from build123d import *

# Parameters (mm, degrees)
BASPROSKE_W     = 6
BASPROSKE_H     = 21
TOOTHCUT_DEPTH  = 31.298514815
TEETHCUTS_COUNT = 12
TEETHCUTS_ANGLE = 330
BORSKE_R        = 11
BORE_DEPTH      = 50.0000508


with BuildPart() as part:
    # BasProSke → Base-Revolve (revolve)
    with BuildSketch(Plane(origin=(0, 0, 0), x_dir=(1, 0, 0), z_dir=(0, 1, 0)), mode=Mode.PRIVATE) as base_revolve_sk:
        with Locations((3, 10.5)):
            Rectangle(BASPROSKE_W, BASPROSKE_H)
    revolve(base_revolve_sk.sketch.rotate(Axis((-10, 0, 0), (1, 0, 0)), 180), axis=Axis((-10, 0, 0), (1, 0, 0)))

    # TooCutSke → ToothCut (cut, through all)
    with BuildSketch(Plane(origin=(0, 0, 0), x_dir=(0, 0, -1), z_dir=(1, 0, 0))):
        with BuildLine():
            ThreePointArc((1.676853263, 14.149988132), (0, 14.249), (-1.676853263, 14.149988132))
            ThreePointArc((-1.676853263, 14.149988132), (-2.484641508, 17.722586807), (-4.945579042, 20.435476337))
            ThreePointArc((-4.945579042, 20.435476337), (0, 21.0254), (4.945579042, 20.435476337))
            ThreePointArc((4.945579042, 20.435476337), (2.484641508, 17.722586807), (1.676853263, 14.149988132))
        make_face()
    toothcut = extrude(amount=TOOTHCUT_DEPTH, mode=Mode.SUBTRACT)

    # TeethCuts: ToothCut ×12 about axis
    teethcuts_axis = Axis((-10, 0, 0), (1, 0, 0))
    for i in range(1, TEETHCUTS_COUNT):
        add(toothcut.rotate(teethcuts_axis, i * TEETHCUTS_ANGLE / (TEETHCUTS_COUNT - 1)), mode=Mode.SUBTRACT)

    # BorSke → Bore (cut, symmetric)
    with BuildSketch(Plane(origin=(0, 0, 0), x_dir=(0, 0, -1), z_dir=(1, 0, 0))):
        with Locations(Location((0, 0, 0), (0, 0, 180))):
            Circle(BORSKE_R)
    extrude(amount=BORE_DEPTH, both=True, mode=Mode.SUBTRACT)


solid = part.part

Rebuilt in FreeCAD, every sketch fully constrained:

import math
import FreeCAD as App
import Part
import Sketcher

V = App.Vector
Q = App.Units.Quantity

doc = App.newDocument("Part")
body = doc.addObject("PartDesign::Body", "Body")

# Sketch on XZ plane
sketch1 = body.newObject("Sketcher::SketchObject", "Sketch")
sketch1.AttachmentSupport = (doc.getObject("XZ_Plane"), [""])
sketch1.MapMode = "FlatFace"
sketch1.addGeometry([
    Part.LineSegment(V(0, -21, 0), V(0, 0, 0)),
    Part.LineSegment(V(0, 0, 0), V(6, 0, 0)),
    Part.LineSegment(V(6, 0, 0), V(6, -21, 0)),
    Part.LineSegment(V(6, -21, 0), V(0, -21, 0)),
], False)
sketch1.addConstraint([
    Sketcher.Constraint("Coincident", 0, 2, 1, 1),
    Sketcher.Constraint("Coincident", 1, 2, 2, 1),
    Sketcher.Constraint("Coincident", 2, 2, 3, 1),
    Sketcher.Constraint("Coincident", 3, 2, 0, 1),
    Sketcher.Constraint("Vertical", 0),
    Sketcher.Constraint("Horizontal", 1),
    Sketcher.Constraint("Vertical", 2),
    Sketcher.Constraint("Horizontal", 3),
    Sketcher.Constraint("Coincident", 0, 2, -1, 1),
    Sketcher.Constraint("DistanceX", 1, 1, 1, 2, Q("6 mm")),
    Sketcher.Constraint("DistanceY", 0, 1, 0, 2, Q("21 mm")),
])
revolution = body.newObject("PartDesign::Revolution", "Revolution")
revolution.Profile = sketch1
revolution.ReferenceAxis = (sketch1, ["H_Axis"])
revolution.Angle = 360

# Sketch on YZ plane
sketch2 = body.newObject("Sketcher::SketchObject", "Sketch001")
sketch2.AttachmentSupport = (doc.getObject("YZ_Plane"), [""])
sketch2.MapMode = "FlatFace"
sketch2.addGeometry([
    Part.ArcOfCircle(Part.Circle(V(0, 0, 0), V(0, 0, 1), 14.249), math.radians(-6.758353), math.radians(6.758353)),
    Part.ArcOfCircle(Part.Circle(V(14.40063, -8.872489, 0), V(0, 0, 1), 7.2), math.radians(33.05229), math.radians(91.994944)),
    Part.ArcOfCircle(Part.Circle(V(0, 0, 0), V(0, 0, 1), 21.0254), math.radians(-13.604548), math.radians(13.604548)),
    Part.ArcOfCircle(Part.Circle(V(14.40063, 8.872489, 0), V(0, 0, 1), 7.2), math.radians(-91.994944), math.radians(-33.05229)),
], False)
sketch2.addConstraint([
    Sketcher.Constraint("Coincident", 0, 1, 1, 2),
    Sketcher.Constraint("Coincident", 1, 1, 2, 1),
    Sketcher.Constraint("Coincident", 2, 2, 3, 2),
    Sketcher.Constraint("Coincident", 3, 1, 0, 2),
    Sketcher.Constraint("Coincident", 0, 3, -1, 1),
    Sketcher.Constraint("Coincident", 2, 3, -1, 1),
    Sketcher.Constraint("Equal", 1, 3),
    Sketcher.Constraint("Symmetric", 1, 3, 3, 3, -1),
    Sketcher.Constraint("Radius", 1, Q("7.2 mm")),
    Sketcher.Constraint("Radius", 0, Q("14.249 mm")),
    Sketcher.Constraint("Radius", 2, Q("21.0254 mm")),
    Sketcher.Constraint("DistanceX", -1, 1, 1, 3, Q("14.40063 mm")),
    Sketcher.Constraint("DistanceY", 1, 3, -1, 1, Q("8.872489 mm")),
])
pocket1 = body.newObject("PartDesign::Pocket", "Pocket")
pocket1.Profile = sketch2
pocket1.Type = "ThroughAll"
pocket1.Reversed = True
doc.recompute()

polarpattern = body.newObject("PartDesign::PolarPattern", "PolarPattern")
polarpattern.Originals = [pocket1]
polarpattern.Axis = (doc.getObject("X_Axis"), [""])
polarpattern.Angle = 360
polarpattern.Occurrences = 12
body.Tip = polarpattern

# Sketch on YZ plane
sketch3 = body.newObject("Sketcher::SketchObject", "Sketch002")
sketch3.AttachmentSupport = (doc.getObject("YZ_Plane"), [""])
sketch3.MapMode = "FlatFace"
sketch3.addGeometry(Part.Circle(V(0, 0, 0), V(0, 0, 1), 11), False)
sketch3.addConstraint([
    Sketcher.Constraint("Coincident", 0, 3, -1, 1),
    Sketcher.Constraint("Diameter", 0, Q("22 mm")),
])
pocket2 = body.newObject("PartDesign::Pocket", "Pocket001")
pocket2.Profile = sketch3
pocket2.Length = 100.000102
pocket2.Midplane = True

doc.recompute()
